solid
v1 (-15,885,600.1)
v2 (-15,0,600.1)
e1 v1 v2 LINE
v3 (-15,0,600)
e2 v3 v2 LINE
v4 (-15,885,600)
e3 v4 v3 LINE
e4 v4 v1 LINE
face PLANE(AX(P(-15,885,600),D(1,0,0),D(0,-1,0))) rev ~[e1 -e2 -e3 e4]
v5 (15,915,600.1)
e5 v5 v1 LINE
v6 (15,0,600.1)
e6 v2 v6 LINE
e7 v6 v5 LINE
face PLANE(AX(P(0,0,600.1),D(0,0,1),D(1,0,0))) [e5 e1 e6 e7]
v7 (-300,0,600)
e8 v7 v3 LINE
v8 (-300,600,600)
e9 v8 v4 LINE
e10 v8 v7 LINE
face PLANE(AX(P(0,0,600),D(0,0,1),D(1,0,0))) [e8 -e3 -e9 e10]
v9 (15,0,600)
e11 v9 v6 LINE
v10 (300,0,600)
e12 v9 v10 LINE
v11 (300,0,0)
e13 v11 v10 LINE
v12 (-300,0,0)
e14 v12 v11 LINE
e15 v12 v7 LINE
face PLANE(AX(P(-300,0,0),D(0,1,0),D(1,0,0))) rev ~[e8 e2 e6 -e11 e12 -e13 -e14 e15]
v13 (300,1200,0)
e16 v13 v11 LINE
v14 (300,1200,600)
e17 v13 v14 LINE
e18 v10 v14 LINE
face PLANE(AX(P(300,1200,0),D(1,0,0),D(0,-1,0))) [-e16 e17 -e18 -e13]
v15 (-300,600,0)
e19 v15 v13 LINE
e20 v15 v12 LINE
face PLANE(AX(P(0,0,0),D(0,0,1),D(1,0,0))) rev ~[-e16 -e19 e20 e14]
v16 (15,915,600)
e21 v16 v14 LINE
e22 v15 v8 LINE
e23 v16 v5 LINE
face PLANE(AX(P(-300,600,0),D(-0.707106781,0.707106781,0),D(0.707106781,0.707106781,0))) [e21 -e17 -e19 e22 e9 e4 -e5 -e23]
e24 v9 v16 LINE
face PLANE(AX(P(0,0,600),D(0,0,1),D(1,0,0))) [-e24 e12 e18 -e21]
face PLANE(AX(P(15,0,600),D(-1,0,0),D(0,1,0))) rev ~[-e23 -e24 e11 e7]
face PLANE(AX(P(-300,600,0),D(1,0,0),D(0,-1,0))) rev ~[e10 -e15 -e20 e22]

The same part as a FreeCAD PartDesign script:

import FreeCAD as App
import Part
import Sketcher

doc = App.newDocument("Part")
body = doc.addObject("PartDesign::Body", "Body")

sketch1 = body.newObject("Sketcher::SketchObject", "Sketch")
sketch1.AttachmentSupport = (doc.getObject("XY_Plane"), [""])
sketch1.MapMode = "FlatFace"
sketch1.addGeometry(Part.LineSegment(App.Vector(-300, 600, 0), App.Vector(-300, 0, 0)), False)
sketch1.addGeometry(Part.LineSegment(App.Vector(-300, 0, 0), App.Vector(300, 0, 0)), False)
sketch1.addGeometry(Part.LineSegment(App.Vector(300, 0, 0), App.Vector(300, 1200, 0)), False)
sketch1.addGeometry(Part.LineSegment(App.Vector(300, 1200, 0), App.Vector(-300, 600, 0)), False)
sketch1.addConstraint(Sketcher.Constraint("Coincident", 0, 2, 1, 1))
sketch1.addConstraint(Sketcher.Constraint("Coincident", 1, 2, 2, 1))
sketch1.addConstraint(Sketcher.Constraint("Coincident", 2, 2, 3, 1))
sketch1.addConstraint(Sketcher.Constraint("Coincident", 3, 2, 0, 1))
sketch1.addConstraint(Sketcher.Constraint("Vertical", 0))
sketch1.addConstraint(Sketcher.Constraint("Horizontal", 1))
sketch1.addConstraint(Sketcher.Constraint("Vertical", 2))
sketch1.addConstraint(Sketcher.Constraint("Symmetric", 0, 2, 1, 2, -1, 1))
sketch1.addConstraint(Sketcher.Constraint("Equal", 1, 0))
sketch1.addConstraint(Sketcher.Constraint("DistanceX", 1, 1, 1, 2, 600.0))
sketch1.addConstraint(Sketcher.Constraint("DistanceY", 3, 2, 2, 2, 600.0))
pad1 = body.newObject("PartDesign::Pad", "Pad")
pad1.Profile = sketch1
pad1.Length = 600

sketch2 = body.newObject("Sketcher::SketchObject", "Sketch001")
sketch2.AttachmentSupport = (doc.getObject("XY_Plane"), [""])
sketch2.MapMode = "FlatFace"
sketch2.AttachmentOffset = App.Placement(App.Vector(0, 0, 600), App.Rotation())
sketch2.addGeometry(Part.LineSegment(App.Vector(15, 0, 0), App.Vector(15, 915, 0)), False)
sketch2.addGeometry(Part.LineSegment(App.Vector(15, 915, 0), App.Vector(-15, 885, 0)), False)
sketch2.addGeometry(Part.LineSegment(App.Vector(-15, 885, 0), App.Vector(-15, 0, 0)), False)
sketch2.addGeometry(Part.LineSegment(App.Vector(-15, 0, 0), App.Vector(15, 0, 0)), False)
sketch2.addConstraint(Sketcher.Constraint("Coincident", 0, 2, 1, 1))
sketch2.addConstraint(Sketcher.Constraint("Coincident", 1, 2, 2, 1))
sketch2.addConstraint(Sketcher.Constraint("Coincident", 2, 2, 3, 1))
sketch2.addConstraint(Sketcher.Constraint("Coincident", 3, 2, 0, 1))
sketch2.addConstraint(Sketcher.Constraint("Vertical", 0))
sketch2.addConstraint(Sketcher.Constraint("Vertical", 2))
sketch2.addConstraint(Sketcher.Constraint("Horizontal", 3))
sketch2.addConstraint(Sketcher.Constraint("Symmetric", 2, 2, 3, 2, -1, 1))
sketch2.addConstraint(Sketcher.Constraint("DistanceX", 3, 1, 3, 2, 30.0))
sketch2.addConstraint(Sketcher.Constraint("DistanceY", 1, 2, 0, 2, 30.0))
sketch2.addConstraint(Sketcher.Constraint("DistanceY", 0, 1, 0, 2, 915.0))
pad2 = body.newObject("PartDesign::Pad", "Pad001")
pad2.Profile = sketch2
pad2.Length = 0.1

doc.recompute()
